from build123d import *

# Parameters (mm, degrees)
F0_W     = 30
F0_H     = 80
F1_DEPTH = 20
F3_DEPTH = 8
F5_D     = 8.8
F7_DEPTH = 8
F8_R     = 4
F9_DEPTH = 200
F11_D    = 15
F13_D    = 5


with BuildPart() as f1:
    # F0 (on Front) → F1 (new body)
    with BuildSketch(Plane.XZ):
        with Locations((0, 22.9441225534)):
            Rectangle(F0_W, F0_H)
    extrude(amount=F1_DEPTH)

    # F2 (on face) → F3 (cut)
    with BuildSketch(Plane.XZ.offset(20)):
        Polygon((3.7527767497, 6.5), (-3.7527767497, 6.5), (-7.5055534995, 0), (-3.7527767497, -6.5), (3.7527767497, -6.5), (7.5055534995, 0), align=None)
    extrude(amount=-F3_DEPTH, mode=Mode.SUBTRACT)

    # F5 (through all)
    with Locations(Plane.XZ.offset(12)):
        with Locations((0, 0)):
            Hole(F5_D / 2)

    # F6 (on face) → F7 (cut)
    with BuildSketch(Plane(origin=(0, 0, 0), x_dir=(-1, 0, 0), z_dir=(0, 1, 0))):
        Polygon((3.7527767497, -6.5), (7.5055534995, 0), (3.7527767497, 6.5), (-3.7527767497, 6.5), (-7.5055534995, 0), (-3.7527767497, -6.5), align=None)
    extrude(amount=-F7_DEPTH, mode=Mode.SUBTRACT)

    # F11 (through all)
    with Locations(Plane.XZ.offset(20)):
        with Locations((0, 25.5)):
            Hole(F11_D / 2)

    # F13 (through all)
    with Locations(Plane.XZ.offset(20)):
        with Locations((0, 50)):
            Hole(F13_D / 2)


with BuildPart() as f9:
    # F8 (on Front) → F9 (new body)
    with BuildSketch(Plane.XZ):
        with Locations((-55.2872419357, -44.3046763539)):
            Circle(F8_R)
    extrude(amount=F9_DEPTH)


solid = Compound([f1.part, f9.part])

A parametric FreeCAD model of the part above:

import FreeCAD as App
import Part
import Sketcher

V = App.Vector
Q = App.Units.Quantity

doc = App.newDocument("Part")
params = doc.addObject("Spreadsheet::Sheet", "Params")
for row, (alias, value) in enumerate([
    ("sketch1_width", "30 mm"),
    ("sketch1_height", "80 mm"),
    ("pad1_length", "20 mm"),
    ("pocket1_length", "8 mm"),
    ("sketch3_diameter", "8.8 mm"),
    ("hole_diameter", "8.8 mm"),
    ("pocket2_length", "8 mm"),
    ("sketch5_diameter", "15 mm"),
    ("hole2_diameter", "15 mm"),
    ("sketch6_diameter", "5 mm"),
    ("hole3_diameter", "5 mm"),
    ("sketch7_diameter", "8 mm"),
    ("pad2_length", "200 mm"),
], start=1):
    params.set(f"A{row}", alias)
    params.set(f"B{row}", "=" + value)
    params.setAlias(f"B{row}", alias)

body = doc.addObject("PartDesign::Body", "Body")

# Sketch on XZ plane
sketch1 = body.newObject("Sketcher::SketchObject", "Sketch")
sketch1.AttachmentSupport = (doc.getObject("XZ_Plane"), [""])
sketch1.MapMode = "FlatFace"
sketch1.addGeometry([
    Part.LineSegment(V(-15, 63, 0), V(-15, -17, 0)),
    Part.LineSegment(V(-15, -17, 0), V(15, -17, 0)),
    Part.LineSegment(V(15, -17, 0), V(15, 63, 0)),
    Part.LineSegment(V(15, 63, 0), V(-15, 63, 0)),
], False)
sketch1.addConstraint([
    Sketcher.Constraint("Coincident", 0, 2, 1, 1),
    Sketcher.Constraint("Coincident", 1, 2, 2, 1),
    Sketcher.Constraint("Coincident", 2, 2, 3, 1),
    Sketcher.Constraint("Coincident", 3, 2, 0, 1),
    Sketcher.Constraint("Vertical", 0),
    Sketcher.Constraint("Horizontal", 1),
    Sketcher.Constraint("Vertical", 2),
    Sketcher.Constraint("Horizontal", 3),
    Sketcher.Constraint("DistanceX", 1, 1, 1, 2, 30.0),
    Sketcher.Constraint("DistanceY", 0, 2, 0, 1, 80.0),
    Sketcher.Constraint("DistanceX", 0, 2, -1, 1, 15.0),
    Sketcher.Constraint("DistanceY", 0, 2, -1, 1, 17.055877),
])
sketch1.setExpression("Constraints[8]", "Params.sketch1_width")
sketch1.setExpression("Constraints[9]", "Params.sketch1_height")
pad1 = body.newObject("PartDesign::Pad", "Pad")
pad1.Profile = sketch1
pad1.setExpression("Length", "Params.pad1_length")

# Sketch on XZ plane
sketch2 = body.newObject("Sketcher::SketchObject", "Sketch001")
sketch2.AttachmentSupport = (doc.getObject("XZ_Plane"), [""])
sketch2.MapMode = "FlatFace"
sketch2.AttachmentOffset = App.Placement(V(0, 0, 20), App.Rotation())
sketch2.addGeometry([
    Part.LineSegment(V(4, 6, 0), V(-4, 6, 0)),  # 0
    Part.LineSegment(V(-4, 6, 0), V(-8, 0, 0)),  # 1
    Part.LineSegment(V(-8, 0, 0), V(-4, -6, 0)),  # 2
    Part.LineSegment(V(-4, -6, 0), V(4, -6, 0)),  # 3
    Part.LineSegment(V(4, -6, 0), V(8, 0, 0)),  # 4
    Part.LineSegment(V(8, 0, 0), V(4, 6, 0)),  # 5
], False)
sketch2.addConstraint([
    Sketcher.Constraint("Coincident", 0, 2, 1, 1),
    Sketcher.Constraint("Coincident", 1, 2, 2, 1),
    Sketcher.Constraint("Coincident", 2, 2, 3, 1),
    Sketcher.Constraint("Coincident", 3, 2, 4, 1),
    Sketcher.Constraint("Coincident", 4, 2, 5, 1),
    Sketcher.Constraint("Coincident", 5, 2, 0, 1),
    Sketcher.Constraint("Horizontal", 0),
    Sketcher.Constraint("Horizontal", 3),
    Sketcher.Constraint("Symmetric", 0, 2, 3, 2, -1, 1),
    Sketcher.Constraint("Symmetric", 1, 2, 4, 2, -1, 1),
    Sketcher.Constraint("PointOnObject", 1, 2, -1),
    Sketcher.Constraint("Parallel", 2, 5),
    Sketcher.Constraint("Vertical", 0, 2, 2, 2),
    Sketcher.Constraint("Angle", 1, Q("-120 deg")),
    Sketcher.Constraint("DistanceY", 2, 2, 0, 2, 13.0),
    Sketcher.Constraint("DistanceX", 0, 2, 0, 1, 7.505554),
])
pocket1 = body.newObject("PartDesign::Pocket", "Pocket")
pocket1.Profile = sketch2
pocket1.setExpression("Length", "Params.pocket1_length")

# Sketch on XZ plane
sketch3 = body.newObject("Sketcher::SketchObject", "Sketch002")
sketch3.AttachmentSupport = (doc.getObject("XZ_Plane"), [""])
sketch3.MapMode = "FlatFace"
sketch3.AttachmentOffset = App.Placement(V(0, 0, 12), App.Rotation())
sketch3.addGeometry(Part.Circle(V(0, 0, 0), V(0, 0, 1), 4.4), False)
sketch3.addConstraint([
    Sketcher.Constraint("Coincident", 0, 3, -1, 1),
    Sketcher.Constraint("Diameter", 0, 8.8),
])
sketch3.setExpression("Constraints[1]", "Params.sketch3_diameter")
doc.recompute()
hole = body.newObject("PartDesign::Hole", "Hole")
hole.Profile = sketch3
hole.ThreadType = "None"
hole.setExpression("Diameter", "Params.hole_diameter")
hole.DepthType = "ThroughAll"

# Sketch on XZ plane
sketch4 = body.newObject("Sketcher::SketchObject", "Sketch003")
sketch4.AttachmentSupport = (doc.getObject("XZ_Plane"), [""])
sketch4.MapMode = "FlatFace"
sketch4.addGeometry([
    Part.LineSegment(V(-4, -6, 0), V(-8, 0, 0)),  # 0
    Part.LineSegment(V(-8, 0, 0), V(-4, 6, 0)),  # 1
    Part.LineSegment(V(-4, 6, 0), V(4, 6, 0)),  # 2
    Part.LineSegment(V(4, 6, 0), V(8, 0, 0)),  # 3
    Part.LineSegment(V(8, 0, 0), V(4, -6, 0)),  # 4
    Part.LineSegment(V(4, -6, 0), V(-4, -6, 0)),  # 5
], False)
sketch4.addConstraint([
    Sketcher.Constraint("Coincident", 0, 2, 1, 1),
    Sketcher.Constraint("Coincident", 1, 2, 2, 1),
    Sketcher.Constraint("Coincident", 2, 2, 3, 1),
    Sketcher.Constraint("Coincident", 3, 2, 4, 1),
    Sketcher.Constraint("Coincident", 4, 2, 5, 1),
    Sketcher.Constraint("Coincident", 5, 2, 0, 1),
    Sketcher.Constraint("Horizontal", 2),
    Sketcher.Constraint("Horizontal", 5),
    Sketcher.Constraint("Symmetric", 0, 2, 3, 2, -1, 1),
    Sketcher.Constraint("Symmetric", 1, 2, 4, 2, -1, 1),
    Sketcher.Constraint("PointOnObject", 0, 2, -1),
    Sketcher.Constraint("Parallel", 0, 3),
    Sketcher.Constraint("Vertical", 2, 2, 4, 2),
    Sketcher.Constraint("Angle", 0, Q("120 deg")),
    Sketcher.Constraint("DistanceY", 4, 2, 2, 2, 13.0),
    Sketcher.Constraint("DistanceX", 2, 1, 2, 2, 7.505554),
])
pocket2 = body.newObject("PartDesign::Pocket", "Pocket001")
pocket2.Profile = sketch4
pocket2.setExpression("Length", "Params.pocket2_length")
pocket2.Reversed = True

# Sketch on XZ plane
sketch5 = body.newObject("Sketcher::SketchObject", "Sketch004")
sketch5.AttachmentSupport = (doc.getObject("XZ_Plane"), [""])
sketch5.MapMode = "FlatFace"
sketch5.AttachmentOffset = App.Placement(V(0, 0, 20), App.Rotation())
sketch5.addGeometry(Part.Circle(V(0, 26, 0), V(0, 0, 1), 8), False)
sketch5.addConstraint([
    Sketcher.Constraint("PointOnObject", 0, 3, -2),
    Sketcher.Constraint("Diameter", 0, 15.0),
    Sketcher.Constraint("DistanceY", -1, 1, 0, 3, 25.5),
])
sketch5.setExpression("Constraints[1]", "Params.sketch5_diameter")
doc.recompute()
hole2 = body.newObject("PartDesign::Hole", "Hole001")
hole2.Profile = sketch5
hole2.ThreadType = "None"
hole2.setExpression("Diameter", "Params.hole2_diameter")
hole2.DepthType = "ThroughAll"

# Sketch on XZ plane
sketch6 = body.newObject("Sketcher::SketchObject", "Sketch005")
sketch6.AttachmentSupport = (doc.getObject("XZ_Plane"), [""])
sketch6.MapMode = "FlatFace"
sketch6.AttachmentOffset = App.Placement(V(0, 0, 20), App.Rotation())
sketch6.addGeometry(Part.Circle(V(0, 50, 0), V(0, 0, 1), 2.5), False)
sketch6.addConstraint([
    Sketcher.Constraint("PointOnObject", 0, 3, -2),
    Sketcher.Constraint("Diameter", 0, 5.0),
    Sketcher.Constraint("DistanceY", -1, 1, 0, 3, 50.0),
])
sketch6.setExpression("Constraints[1]", "Params.sketch6_diameter")
doc.recompute()
hole3 = body.newObject("PartDesign::Hole", "Hole002")
hole3.Profile = sketch6
hole3.ThreadType = "None"
hole3.setExpression("Diameter", "Params.hole3_diameter")
hole3.DepthType = "ThroughAll"
body2 = doc.addObject("PartDesign::Body", "Body001")

# Sketch on XZ plane
sketch7 = body2.newObject("Sketcher::SketchObject", "Sketch006")
sketch7.AttachmentSupport = (doc.getObject("XZ_Plane001"), [""])
sketch7.MapMode = "FlatFace"
sketch7.addGeometry(Part.Circle(V(-55.3, -44.3, 0), V(0, 0, 1), 4), False)
sketch7.addConstraint([
    Sketcher.Constraint("Diameter", 0, 8.0),
    Sketcher.Constraint("DistanceX", 0, 3, -1, 1, 55.287242),
    Sketcher.Constraint("DistanceY", 0, 3, -1, 1, 44.304676),
])
sketch7.setExpression("Constraints[0]", "Params.sketch7_diameter")
pad2 = body2.newObject("PartDesign::Pad", "Pad001")
pad2.Profile = sketch7
pad2.setExpression("Length", "Params.pad2_length")

doc.recompute()
